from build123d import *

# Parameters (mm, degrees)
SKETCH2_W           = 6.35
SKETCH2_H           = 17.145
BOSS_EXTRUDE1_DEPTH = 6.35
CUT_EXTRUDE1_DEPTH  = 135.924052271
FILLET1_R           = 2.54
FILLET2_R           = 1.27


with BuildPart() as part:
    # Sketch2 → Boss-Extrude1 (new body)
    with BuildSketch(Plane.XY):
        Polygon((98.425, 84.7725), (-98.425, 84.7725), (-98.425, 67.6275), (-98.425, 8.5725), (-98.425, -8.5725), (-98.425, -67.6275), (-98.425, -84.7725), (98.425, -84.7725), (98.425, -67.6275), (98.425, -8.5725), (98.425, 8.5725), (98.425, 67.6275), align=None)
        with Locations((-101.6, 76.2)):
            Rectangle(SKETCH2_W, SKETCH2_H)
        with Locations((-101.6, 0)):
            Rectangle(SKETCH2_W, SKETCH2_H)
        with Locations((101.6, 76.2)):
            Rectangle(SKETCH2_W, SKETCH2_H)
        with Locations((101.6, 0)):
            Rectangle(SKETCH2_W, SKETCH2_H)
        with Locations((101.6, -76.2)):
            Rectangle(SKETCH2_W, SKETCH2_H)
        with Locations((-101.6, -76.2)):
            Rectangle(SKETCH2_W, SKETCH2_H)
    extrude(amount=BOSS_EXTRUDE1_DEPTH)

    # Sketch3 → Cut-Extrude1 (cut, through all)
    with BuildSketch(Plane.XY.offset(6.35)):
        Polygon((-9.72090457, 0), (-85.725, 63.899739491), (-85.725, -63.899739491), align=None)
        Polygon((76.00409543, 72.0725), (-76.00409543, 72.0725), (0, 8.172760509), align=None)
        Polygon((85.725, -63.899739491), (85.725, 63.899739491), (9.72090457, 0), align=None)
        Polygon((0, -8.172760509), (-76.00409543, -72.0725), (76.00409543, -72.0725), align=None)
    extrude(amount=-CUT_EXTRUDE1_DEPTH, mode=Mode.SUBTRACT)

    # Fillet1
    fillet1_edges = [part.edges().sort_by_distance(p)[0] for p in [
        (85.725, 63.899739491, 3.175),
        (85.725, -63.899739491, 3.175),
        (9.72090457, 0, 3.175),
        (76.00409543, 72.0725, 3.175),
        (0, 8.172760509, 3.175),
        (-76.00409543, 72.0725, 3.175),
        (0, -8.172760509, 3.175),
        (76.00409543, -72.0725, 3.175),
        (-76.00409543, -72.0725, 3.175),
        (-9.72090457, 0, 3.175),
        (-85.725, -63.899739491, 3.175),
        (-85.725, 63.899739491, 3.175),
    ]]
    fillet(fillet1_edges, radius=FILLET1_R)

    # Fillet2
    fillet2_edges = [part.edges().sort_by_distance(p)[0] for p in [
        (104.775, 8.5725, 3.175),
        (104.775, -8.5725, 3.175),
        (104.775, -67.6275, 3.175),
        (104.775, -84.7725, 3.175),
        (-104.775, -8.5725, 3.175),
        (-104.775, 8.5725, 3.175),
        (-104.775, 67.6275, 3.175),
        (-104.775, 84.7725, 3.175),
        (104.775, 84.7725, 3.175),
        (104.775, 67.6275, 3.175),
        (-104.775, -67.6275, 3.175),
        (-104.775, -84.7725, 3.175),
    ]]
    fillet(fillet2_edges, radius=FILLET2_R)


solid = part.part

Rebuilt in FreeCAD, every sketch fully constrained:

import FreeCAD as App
import Part
import Sketcher

V = App.Vector
Q = App.Units.Quantity


def edges_at(feature, points):
    """Names of the edges that pass closest to the given points."""
    edges = feature.Shape.Edges
    near = lambda p: min(range(len(edges)), key=lambda i: edges[i].distToShape(Part.Vertex(*p))[0])
    return sorted({f"Edge{near(p) + 1}" for p in points})

doc = App.newDocument("Part")
body = doc.addObject("PartDesign::Body", "Body")

sketch1 = body.newObject("Sketcher::SketchObject", "Sketch")
sketch1.AttachmentSupport = (doc.getObject("XY_Plane"), [""])
sketch1.MapMode = "FlatFace"
sketch1.addGeometry(Part.LineSegment(V(-104.775, 84.7725, 0), V(-104.775, 67.6275, 0)), False)
sketch1.addGeometry(Part.LineSegment(V(-104.775, 67.6275, 0), V(-98.425, 67.6275, 0)), False)
sketch1.addGeometry(Part.LineSegment(V(-98.425, 67.6275, 0), V(-98.425, 8.5725, 0)), False)
sketch1.addGeometry(Part.LineSegment(V(-98.425, 8.5725, 0), V(-104.775, 8.5725, 0)), False)
sketch1.addGeometry(Part.LineSegment(V(-104.775, 8.5725, 0), V(-104.775, -8.5725, 0)), False)
sketch1.addGeometry(Part.LineSegment(V(-104.775, -8.5725, 0), V(-98.425, -8.5725, 0)), False)
sketch1.addGeometry(Part.LineSegment(V(-98.425, -8.5725, 0), V(-98.425, -67.6275, 0)), False)
sketch1.addGeometry(Part.LineSegment(V(-98.425, -67.6275, 0), V(-104.775, -67.6275, 0)), False)
sketch1.addGeometry(Part.LineSegment(V(-104.775, -67.6275, 0), V(-104.775, -84.7725, 0)), False)
sketch1.addGeometry(Part.LineSegment(V(-104.775, -84.7725, 0), V(104.775, -84.7725, 0)), False)
sketch1.addGeometry(Part.LineSegment(V(104.775, -84.7725, 0), V(104.775, -67.6275, 0)), False)
sketch1.addGeometry(Part.LineSegment(V(104.775, -67.6275, 0), V(98.425, -67.6275, 0)), False)
sketch1.addGeometry(Part.LineSegment(V(98.425, -67.6275, 0), V(98.425, -8.5725, 0)), False)
sketch1.addGeometry(Part.LineSegment(V(98.425, -8.5725, 0), V(104.775, -8.5725, 0)), False)
sketch1.addGeometry(Part.LineSegment(V(104.775, -8.5725, 0), V(104.775, 8.5725, 0)), False)
sketch1.addGeometry(Part.LineSegment(V(104.775, 8.5725, 0), V(98.425, 8.5725, 0)), False)
sketch1.addGeometry(Part.LineSegment(V(98.425, 8.5725, 0), V(98.425, 67.6275, 0)), False)
sketch1.addGeometry(Part.LineSegment(V(98.425, 67.6275, 0), V(104.775, 67.6275, 0)), False)
sketch1.addGeometry(Part.LineSegment(V(104.775, 67.6275, 0), V(104.775, 84.7725, 0)), False)
sketch1.addGeometry(Part.LineSegment(V(104.775, 84.7725, 0), V(-104.775, 84.7725, 0)), False)
sketch1.addConstraint(Sketcher.Constraint("Coincident", 0, 2, 1, 1))
sketch1.addConstraint(Sketcher.Constraint("Coincident", 1, 2, 2, 1))
sketch1.addConstraint(Sketcher.Constraint("Coincident", 2, 2, 3, 1))
sketch1.addConstraint(Sketcher.Constraint("Coincident", 3, 2, 4, 1))
sketch1.addConstraint(Sketcher.Constraint("Coincident", 4, 2, 5, 1))
sketch1.addConstraint(Sketcher.Constraint("Coincident", 5, 2, 6, 1))
sketch1.addConstraint(Sketcher.Constraint("Coincident", 6, 2, 7, 1))
sketch1.addConstraint(Sketcher.Constraint("Coincident", 7, 2, 8, 1))
sketch1.addConstraint(Sketcher.Constraint("Coincident", 8, 2, 9, 1))
sketch1.addConstraint(Sketcher.Constraint("Coincident", 9, 2, 10, 1))
sketch1.addConstraint(Sketcher.Constraint("Coincident", 10, 2, 11, 1))
sketch1.addConstraint(Sketcher.Constraint("Coincident", 11, 2, 12, 1))
sketch1.addConstraint(Sketcher.Constraint("Coincident", 12, 2, 13, 1))
sketch1.addConstraint(Sketcher.Constraint("Coincident", 13, 2, 14, 1))
sketch1.addConstraint(Sketcher.Constraint("Coincident", 14, 2, 15, 1))
sketch1.addConstraint(Sketcher.Constraint("Coincident", 15, 2, 16, 1))
sketch1.addConstraint(Sketcher.Constraint("Coincident", 16, 2, 17, 1))
sketch1.addConstraint(Sketcher.Constraint("Coincident", 17, 2, 18, 1))
sketch1.addConstraint(Sketcher.Constraint("Coincident", 18, 2, 19, 1))
sketch1.addConstraint(Sketcher.Constraint("Coincident", 19, 2, 0, 1))
sketch1.addConstraint(Sketcher.Constraint("Vertical", 0))
sketch1.addConstraint(Sketcher.Constraint("Horizontal", 1))
sketch1.addConstraint(Sketcher.Constraint("Vertical", 2))
sketch1.addConstraint(Sketcher.Constraint("Horizontal", 3))
sketch1.addConstraint(Sketcher.Constraint("Vertical", 4))
sketch1.addConstraint(Sketcher.Constraint("Horizontal", 5))
sketch1.addConstraint(Sketcher.Constraint("Vertical", 6))
sketch1.addConstraint(Sketcher.Constraint("Horizontal", 7))
sketch1.addConstraint(Sketcher.Constraint("Vertical", 8))
sketch1.addConstraint(Sketcher.Constraint("Horizontal", 9))
sketch1.addConstraint(Sketcher.Constraint("Vertical", 10))
sketch1.addConstraint(Sketcher.Constraint("Horizontal", 11))
sketch1.addConstraint(Sketcher.Constraint("Vertical", 12))
sketch1.addConstraint(Sketcher.Constraint("Horizontal", 13))
sketch1.addConstraint(Sketcher.Constraint("Vertical", 14))
sketch1.addConstraint(Sketcher.Constraint("Horizontal", 15))
sketch1.addConstraint(Sketcher.Constraint("Vertical", 16))
sketch1.addConstraint(Sketcher.Constraint("Horizontal", 17))
sketch1.addConstraint(Sketcher.Constraint("Vertical", 18))
sketch1.addConstraint(Sketcher.Constraint("Horizontal", 19))
sketch1.addConstraint(Sketcher.Constraint("Symmetric", 0, 2, 10, 2, -1, 1))
sketch1.addConstraint(Sketcher.Constraint("Symmetric", 2, 2, 12, 2, -1, 1))
sketch1.addConstraint(Sketcher.Constraint("Symmetric", 4, 2, 14, 2, -1, 1))
sketch1.addConstraint(Sketcher.Constraint("Symmetric", 6, 2, 16, 2, -1, 1))
sketch1.addConstraint(Sketcher.Constraint("Symmetric", 8, 2, 18, 2, -1, 1))
sketch1.addConstraint(Sketcher.Constraint("Symmetric", 7, 2, 10, 2, -2))
sketch1.addConstraint(Sketcher.Constraint("Symmetric", 5, 2, 12, 2, -2))
sketch1.addConstraint(Sketcher.Constraint("Vertical", 0, 2, 3, 2))
sketch1.addConstraint(Sketcher.Constraint("Equal", 0, 4))
sketch1.addConstraint(Sketcher.Constraint("DistanceY", 4, 2, 0, 2, Q("3 in")))
sketch1.addConstraint(Sketcher.Constraint("DistanceX", 6, 2, 9, 2, Q("8 in")))
sketch1.addConstraint(Sketcher.Constraint("DistanceX", 1, 1, 1, 2, Q("0.25 in")))
sketch1.addConstraint(Sketcher.Constraint("DistanceY", 0, 2, 0, 1, Q("0.675 in")))
pad1 = body.newObject("PartDesign::Pad", "Pad")
pad1.Profile = sketch1
pad1.Length = Q("0.25 in")

sketch2 = body.newObject("Sketcher::SketchObject", "Sketch001")
sketch2.AttachmentSupport = (doc.getObject("XY_Plane"), [""])
sketch2.MapMode = "FlatFace"
sketch2.AttachmentOffset = App.Placement(V(0, 0, 0.25 * 25.4), App.Rotation())
sketch2.addGeometry(Part.LineSegment(V(-9.720905, 0, 0), V(-85.725, 63.899739, 0)), False)
sketch2.addGeometry(Part.LineSegment(V(-85.725, 63.899739, 0), V(-85.725, -63.899739, 0)), False)
sketch2.addGeometry(Part.LineSegment(V(-85.725, -63.899739, 0), V(-9.720905, 0, 0)), False)
sketch2.addGeometry(Part.LineSegment(V(76.004095, 72.0725, 0), V(-76.004095, 72.0725, 0)), False)
sketch2.addGeometry(Part.LineSegment(V(-76.004095, 72.0725, 0), V(0, 8.172761, 0)), False)
sketch2.addGeometry(Part.LineSegment(V(0, 8.172761, 0), V(76.004095, 72.0725, 0)), False)
sketch2.addGeometry(Part.LineSegment(V(85.725, -63.899739, 0), V(85.725, 63.899739, 0)), False)
sketch2.addGeometry(Part.LineSegment(V(85.725, 63.899739, 0), V(9.720905, 0, 0)), False)
sketch2.addGeometry(Part.LineSegment(V(9.720905, 0, 0), V(85.725, -63.899739, 0)), False)
sketch2.addGeometry(Part.LineSegment(V(0, -8.172761, 0), V(-76.004095, -72.0725, 0)), False)
sketch2.addGeometry(Part.LineSegment(V(-76.004095, -72.0725, 0), V(76.004095, -72.0725, 0)), False)
sketch2.addGeometry(Part.LineSegment(V(76.004095, -72.0725, 0), V(0, -8.172761, 0)), False)
sketch2.addConstraint(Sketcher.Constraint("Coincident", 0, 2, 1, 1))
sketch2.addConstraint(Sketcher.Constraint("Coincident", 1, 2, 2, 1))
sketch2.addConstraint(Sketcher.Constraint("Coincident", 2, 2, 0, 1))
sketch2.addConstraint(Sketcher.Constraint("Coincident", 3, 2, 4, 1))
sketch2.addConstraint(Sketcher.Constraint("Coincident", 4, 2, 5, 1))
sketch2.addConstraint(Sketcher.Constraint("Coincident", 5, 2, 3, 1))
sketch2.addConstraint(Sketcher.Constraint("Coincident", 6, 2, 7, 1))
sketch2.addConstraint(Sketcher.Constraint("Coincident", 7, 2, 8, 1))
sketch2.addConstraint(Sketcher.Constraint("Coincident", 8, 2, 6, 1))
sketch2.addConstraint(Sketcher.Constraint("Coincident", 9, 2, 10, 1))
sketch2.addConstraint(Sketcher.Constraint("Coincident", 10, 2, 11, 1))
sketch2.addConstraint(Sketcher.Constraint("Coincident", 11, 2, 9, 1))
sketch2.addConstraint(Sketcher.Constraint("Vertical", 1))
sketch2.addConstraint(Sketcher.Constraint("Horizontal", 3))
sketch2.addConstraint(Sketcher.Constraint("Vertical", 6))
sketch2.addConstraint(Sketcher.Constraint("Horizontal", 10))
sketch2.addConstraint(Sketcher.Constraint("Symmetric", 1, 2, 6, 2, -1, 1))
sketch2.addConstraint(Sketcher.Constraint("Symmetric", 2, 2, 7, 2, -1, 1))
sketch2.addConstraint(Sketcher.Constraint("Symmetric", 5, 2, 9, 2, -1, 1))
sketch2.addConstraint(Sketcher.Constraint("Symmetric", 4, 2, 11, 2, -1, 1))
sketch2.addConstraint(Sketcher.Constraint("PointOnObject", 2, 2, -1))
sketch2.addConstraint(Sketcher.Constraint("PointOnObject", 4, 2, -2))
sketch2.addConstraint(Sketcher.Constraint("Parallel", 0, 4))
sketch2.addConstraint(Sketcher.Constraint("Parallel", 2, 5))
sketch2.addConstraint(Sketcher.Constraint("Parallel", 4, 8))
sketch2.addConstraint(Sketcher.Constraint("Parallel", 8, 11))
sketch2.addConstraint(Sketcher.Constraint("Horizontal", 0, 2, 6, 2))
sketch2.addConstraint(Sketcher.Constraint("Equal", 2, 4))
sketch2.addConstraint(Sketcher.Constraint("DistanceX", 0, 2, 6, 2, Q("6.75 in")))
sketch2.addConstraint(Sketcher.Constraint("DistanceY", -1, 1, 3, 2, Q("2.8375 in")))
sketch2.addConstraint(Sketcher.Constraint("DistanceX", 3, 2, 3, 1, Q("152.008191 mm")))
sketch2.addConstraint(Sketcher.Constraint("DistanceY", 1, 2, 1, 1, Q("127.799479 mm")))
pocket1 = body.newObject("PartDesign::Pocket", "Pocket")
pocket1.Profile = sketch2
pocket1.Type = "ThroughAll"
doc.recompute()

fillet = body.newObject("PartDesign::Fillet", "Fillet")
fillet.Base = (pocket1, edges_at(pocket1, [
    (85.725, 63.9, 3.175),
    (85.725, -63.9, 3.175),
    (9.721, 0, 3.175),
    (76.004, 72.073, 3.175),
    (0, 8.173, 3.175),
    (-76.004, 72.073, 3.175),
    (0, -8.173, 3.175),
    (76.004, -72.073, 3.175),
    (-76.004, -72.073, 3.175),
    (-9.721, 0, 3.175),
    (-85.725, -63.9, 3.175),
    (-85.725, 63.9, 3.175),
]))
fillet.Radius = Q("0.1 in")
doc.recompute()

fillet2 = body.newObject("PartDesign::Fillet", "Fillet001")
fillet2.Base = (fillet, edges_at(fillet, [
    (104.775, 8.572, 3.175),
    (104.775, -8.572, 3.175),
    (104.775, -67.627, 3.175),
    (104.775, -84.772, 3.175),
    (-104.775, -8.572, 3.175),
    (-104.775, 8.572, 3.175),
    (-104.775, 67.627, 3.175),
    (-104.775, 84.772, 3.175),
    (104.775, 84.772, 3.175),
    (104.775, 67.627, 3.175),
    (-104.775, -67.627, 3.175),
    (-104.775, -84.772, 3.175),
]))
fillet2.Radius = Q("0.05 in")

doc.recompute()
